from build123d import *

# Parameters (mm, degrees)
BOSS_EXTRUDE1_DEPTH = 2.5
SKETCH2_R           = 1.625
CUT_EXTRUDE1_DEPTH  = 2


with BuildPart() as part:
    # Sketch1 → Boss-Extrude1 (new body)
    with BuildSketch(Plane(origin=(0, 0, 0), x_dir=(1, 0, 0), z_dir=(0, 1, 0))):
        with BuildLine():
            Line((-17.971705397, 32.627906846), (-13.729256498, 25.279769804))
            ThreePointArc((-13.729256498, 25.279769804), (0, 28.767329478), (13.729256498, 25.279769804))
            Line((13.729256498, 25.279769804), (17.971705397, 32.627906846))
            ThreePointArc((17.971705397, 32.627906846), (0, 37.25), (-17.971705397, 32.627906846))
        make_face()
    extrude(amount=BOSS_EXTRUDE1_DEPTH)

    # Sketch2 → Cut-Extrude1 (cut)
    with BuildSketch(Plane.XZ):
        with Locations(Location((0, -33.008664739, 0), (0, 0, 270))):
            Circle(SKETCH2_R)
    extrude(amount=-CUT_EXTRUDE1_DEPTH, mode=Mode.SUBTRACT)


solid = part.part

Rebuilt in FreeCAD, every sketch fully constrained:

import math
import FreeCAD as App
import Part
import Sketcher

V = App.Vector
Q = App.Units.Quantity

doc = App.newDocument("Part")
body = doc.addObject("PartDesign::Body", "Body")

sketch1 = body.newObject("Sketcher::SketchObject", "Sketch")
sketch1.AttachmentSupport = (doc.getObject("XZ_Plane"), [""])
sketch1.MapMode = "FlatFace"
sketch1.addGeometry(Part.LineSegment(V(-18, -33, 0), V(-14, -25, 0)), False)
sketch1.addGeometry(Part.ArcOfCircle(Part.Circle(V(0, 0, 0), V(0, 0, 1), 29), math.radians(-119), math.radians(-61)), False)
sketch1.addGeometry(Part.LineSegment(V(14, -25, 0), V(18, -33, 0)), False)
sketch1.addGeometry(Part.ArcOfCircle(Part.Circle(V(0, 0, 0), V(0, 0, 1), 37), math.radians(-119), math.radians(-61)), False)
sketch1.addConstraint(Sketcher.Constraint("Coincident", 0, 2, 1, 1))
sketch1.addConstraint(Sketcher.Constraint("Coincident", 1, 2, 2, 1))
sketch1.addConstraint(Sketcher.Constraint("Coincident", 2, 2, 3, 2))
sketch1.addConstraint(Sketcher.Constraint("Coincident", 3, 1, 0, 1))
sketch1.addConstraint(Sketcher.Constraint("Coincident", 1, 3, -1, 1))
sketch1.addConstraint(Sketcher.Constraint("Coincident", 3, 3, -1, 1))
sketch1.addConstraint(Sketcher.Constraint("Horizontal", 0, 2, 1, 2))
sketch1.addConstraint(Sketcher.Constraint("Horizontal", 2, 2, 3, 1))
sketch1.addConstraint(Sketcher.Constraint("Angle", 0, Q("60 deg")))
sketch1.addConstraint(Sketcher.Constraint("Radius", 3, Q("37.25 mm")))
sketch1.addConstraint(Sketcher.Constraint("Radius", 1, Q("28.767329 mm")))
sketch1.addConstraint(Sketcher.Constraint("DistanceY", 0, 2, -1, 1, Q("25.27977 mm")))
pad1 = body.newObject("PartDesign::Pad", "Pad")
pad1.Profile = sketch1
pad1.Length = 2.5
pad1.Reversed = True

sketch2 = body.newObject("Sketcher::SketchObject", "Sketch001")
sketch2.AttachmentSupport = (doc.getObject("XZ_Plane"), [""])
sketch2.MapMode = "FlatFace"
sketch2.addGeometry(Part.Circle(V(0, -33, 0), V(0, 0, 1), 1.6), False)
sketch2.addConstraint(Sketcher.Constraint("PointOnObject", 0, 3, -2))
sketch2.addConstraint(Sketcher.Constraint("Diameter", 0, Q("3.25 mm")))
sketch2.addConstraint(Sketcher.Constraint("DistanceY", 0, 3, -1, 1, Q("33.008665 mm")))
pocket1 = body.newObject("PartDesign::Pocket", "Pocket")
pocket1.Profile = sketch2
pocket1.Length = 2

doc.recompute()
